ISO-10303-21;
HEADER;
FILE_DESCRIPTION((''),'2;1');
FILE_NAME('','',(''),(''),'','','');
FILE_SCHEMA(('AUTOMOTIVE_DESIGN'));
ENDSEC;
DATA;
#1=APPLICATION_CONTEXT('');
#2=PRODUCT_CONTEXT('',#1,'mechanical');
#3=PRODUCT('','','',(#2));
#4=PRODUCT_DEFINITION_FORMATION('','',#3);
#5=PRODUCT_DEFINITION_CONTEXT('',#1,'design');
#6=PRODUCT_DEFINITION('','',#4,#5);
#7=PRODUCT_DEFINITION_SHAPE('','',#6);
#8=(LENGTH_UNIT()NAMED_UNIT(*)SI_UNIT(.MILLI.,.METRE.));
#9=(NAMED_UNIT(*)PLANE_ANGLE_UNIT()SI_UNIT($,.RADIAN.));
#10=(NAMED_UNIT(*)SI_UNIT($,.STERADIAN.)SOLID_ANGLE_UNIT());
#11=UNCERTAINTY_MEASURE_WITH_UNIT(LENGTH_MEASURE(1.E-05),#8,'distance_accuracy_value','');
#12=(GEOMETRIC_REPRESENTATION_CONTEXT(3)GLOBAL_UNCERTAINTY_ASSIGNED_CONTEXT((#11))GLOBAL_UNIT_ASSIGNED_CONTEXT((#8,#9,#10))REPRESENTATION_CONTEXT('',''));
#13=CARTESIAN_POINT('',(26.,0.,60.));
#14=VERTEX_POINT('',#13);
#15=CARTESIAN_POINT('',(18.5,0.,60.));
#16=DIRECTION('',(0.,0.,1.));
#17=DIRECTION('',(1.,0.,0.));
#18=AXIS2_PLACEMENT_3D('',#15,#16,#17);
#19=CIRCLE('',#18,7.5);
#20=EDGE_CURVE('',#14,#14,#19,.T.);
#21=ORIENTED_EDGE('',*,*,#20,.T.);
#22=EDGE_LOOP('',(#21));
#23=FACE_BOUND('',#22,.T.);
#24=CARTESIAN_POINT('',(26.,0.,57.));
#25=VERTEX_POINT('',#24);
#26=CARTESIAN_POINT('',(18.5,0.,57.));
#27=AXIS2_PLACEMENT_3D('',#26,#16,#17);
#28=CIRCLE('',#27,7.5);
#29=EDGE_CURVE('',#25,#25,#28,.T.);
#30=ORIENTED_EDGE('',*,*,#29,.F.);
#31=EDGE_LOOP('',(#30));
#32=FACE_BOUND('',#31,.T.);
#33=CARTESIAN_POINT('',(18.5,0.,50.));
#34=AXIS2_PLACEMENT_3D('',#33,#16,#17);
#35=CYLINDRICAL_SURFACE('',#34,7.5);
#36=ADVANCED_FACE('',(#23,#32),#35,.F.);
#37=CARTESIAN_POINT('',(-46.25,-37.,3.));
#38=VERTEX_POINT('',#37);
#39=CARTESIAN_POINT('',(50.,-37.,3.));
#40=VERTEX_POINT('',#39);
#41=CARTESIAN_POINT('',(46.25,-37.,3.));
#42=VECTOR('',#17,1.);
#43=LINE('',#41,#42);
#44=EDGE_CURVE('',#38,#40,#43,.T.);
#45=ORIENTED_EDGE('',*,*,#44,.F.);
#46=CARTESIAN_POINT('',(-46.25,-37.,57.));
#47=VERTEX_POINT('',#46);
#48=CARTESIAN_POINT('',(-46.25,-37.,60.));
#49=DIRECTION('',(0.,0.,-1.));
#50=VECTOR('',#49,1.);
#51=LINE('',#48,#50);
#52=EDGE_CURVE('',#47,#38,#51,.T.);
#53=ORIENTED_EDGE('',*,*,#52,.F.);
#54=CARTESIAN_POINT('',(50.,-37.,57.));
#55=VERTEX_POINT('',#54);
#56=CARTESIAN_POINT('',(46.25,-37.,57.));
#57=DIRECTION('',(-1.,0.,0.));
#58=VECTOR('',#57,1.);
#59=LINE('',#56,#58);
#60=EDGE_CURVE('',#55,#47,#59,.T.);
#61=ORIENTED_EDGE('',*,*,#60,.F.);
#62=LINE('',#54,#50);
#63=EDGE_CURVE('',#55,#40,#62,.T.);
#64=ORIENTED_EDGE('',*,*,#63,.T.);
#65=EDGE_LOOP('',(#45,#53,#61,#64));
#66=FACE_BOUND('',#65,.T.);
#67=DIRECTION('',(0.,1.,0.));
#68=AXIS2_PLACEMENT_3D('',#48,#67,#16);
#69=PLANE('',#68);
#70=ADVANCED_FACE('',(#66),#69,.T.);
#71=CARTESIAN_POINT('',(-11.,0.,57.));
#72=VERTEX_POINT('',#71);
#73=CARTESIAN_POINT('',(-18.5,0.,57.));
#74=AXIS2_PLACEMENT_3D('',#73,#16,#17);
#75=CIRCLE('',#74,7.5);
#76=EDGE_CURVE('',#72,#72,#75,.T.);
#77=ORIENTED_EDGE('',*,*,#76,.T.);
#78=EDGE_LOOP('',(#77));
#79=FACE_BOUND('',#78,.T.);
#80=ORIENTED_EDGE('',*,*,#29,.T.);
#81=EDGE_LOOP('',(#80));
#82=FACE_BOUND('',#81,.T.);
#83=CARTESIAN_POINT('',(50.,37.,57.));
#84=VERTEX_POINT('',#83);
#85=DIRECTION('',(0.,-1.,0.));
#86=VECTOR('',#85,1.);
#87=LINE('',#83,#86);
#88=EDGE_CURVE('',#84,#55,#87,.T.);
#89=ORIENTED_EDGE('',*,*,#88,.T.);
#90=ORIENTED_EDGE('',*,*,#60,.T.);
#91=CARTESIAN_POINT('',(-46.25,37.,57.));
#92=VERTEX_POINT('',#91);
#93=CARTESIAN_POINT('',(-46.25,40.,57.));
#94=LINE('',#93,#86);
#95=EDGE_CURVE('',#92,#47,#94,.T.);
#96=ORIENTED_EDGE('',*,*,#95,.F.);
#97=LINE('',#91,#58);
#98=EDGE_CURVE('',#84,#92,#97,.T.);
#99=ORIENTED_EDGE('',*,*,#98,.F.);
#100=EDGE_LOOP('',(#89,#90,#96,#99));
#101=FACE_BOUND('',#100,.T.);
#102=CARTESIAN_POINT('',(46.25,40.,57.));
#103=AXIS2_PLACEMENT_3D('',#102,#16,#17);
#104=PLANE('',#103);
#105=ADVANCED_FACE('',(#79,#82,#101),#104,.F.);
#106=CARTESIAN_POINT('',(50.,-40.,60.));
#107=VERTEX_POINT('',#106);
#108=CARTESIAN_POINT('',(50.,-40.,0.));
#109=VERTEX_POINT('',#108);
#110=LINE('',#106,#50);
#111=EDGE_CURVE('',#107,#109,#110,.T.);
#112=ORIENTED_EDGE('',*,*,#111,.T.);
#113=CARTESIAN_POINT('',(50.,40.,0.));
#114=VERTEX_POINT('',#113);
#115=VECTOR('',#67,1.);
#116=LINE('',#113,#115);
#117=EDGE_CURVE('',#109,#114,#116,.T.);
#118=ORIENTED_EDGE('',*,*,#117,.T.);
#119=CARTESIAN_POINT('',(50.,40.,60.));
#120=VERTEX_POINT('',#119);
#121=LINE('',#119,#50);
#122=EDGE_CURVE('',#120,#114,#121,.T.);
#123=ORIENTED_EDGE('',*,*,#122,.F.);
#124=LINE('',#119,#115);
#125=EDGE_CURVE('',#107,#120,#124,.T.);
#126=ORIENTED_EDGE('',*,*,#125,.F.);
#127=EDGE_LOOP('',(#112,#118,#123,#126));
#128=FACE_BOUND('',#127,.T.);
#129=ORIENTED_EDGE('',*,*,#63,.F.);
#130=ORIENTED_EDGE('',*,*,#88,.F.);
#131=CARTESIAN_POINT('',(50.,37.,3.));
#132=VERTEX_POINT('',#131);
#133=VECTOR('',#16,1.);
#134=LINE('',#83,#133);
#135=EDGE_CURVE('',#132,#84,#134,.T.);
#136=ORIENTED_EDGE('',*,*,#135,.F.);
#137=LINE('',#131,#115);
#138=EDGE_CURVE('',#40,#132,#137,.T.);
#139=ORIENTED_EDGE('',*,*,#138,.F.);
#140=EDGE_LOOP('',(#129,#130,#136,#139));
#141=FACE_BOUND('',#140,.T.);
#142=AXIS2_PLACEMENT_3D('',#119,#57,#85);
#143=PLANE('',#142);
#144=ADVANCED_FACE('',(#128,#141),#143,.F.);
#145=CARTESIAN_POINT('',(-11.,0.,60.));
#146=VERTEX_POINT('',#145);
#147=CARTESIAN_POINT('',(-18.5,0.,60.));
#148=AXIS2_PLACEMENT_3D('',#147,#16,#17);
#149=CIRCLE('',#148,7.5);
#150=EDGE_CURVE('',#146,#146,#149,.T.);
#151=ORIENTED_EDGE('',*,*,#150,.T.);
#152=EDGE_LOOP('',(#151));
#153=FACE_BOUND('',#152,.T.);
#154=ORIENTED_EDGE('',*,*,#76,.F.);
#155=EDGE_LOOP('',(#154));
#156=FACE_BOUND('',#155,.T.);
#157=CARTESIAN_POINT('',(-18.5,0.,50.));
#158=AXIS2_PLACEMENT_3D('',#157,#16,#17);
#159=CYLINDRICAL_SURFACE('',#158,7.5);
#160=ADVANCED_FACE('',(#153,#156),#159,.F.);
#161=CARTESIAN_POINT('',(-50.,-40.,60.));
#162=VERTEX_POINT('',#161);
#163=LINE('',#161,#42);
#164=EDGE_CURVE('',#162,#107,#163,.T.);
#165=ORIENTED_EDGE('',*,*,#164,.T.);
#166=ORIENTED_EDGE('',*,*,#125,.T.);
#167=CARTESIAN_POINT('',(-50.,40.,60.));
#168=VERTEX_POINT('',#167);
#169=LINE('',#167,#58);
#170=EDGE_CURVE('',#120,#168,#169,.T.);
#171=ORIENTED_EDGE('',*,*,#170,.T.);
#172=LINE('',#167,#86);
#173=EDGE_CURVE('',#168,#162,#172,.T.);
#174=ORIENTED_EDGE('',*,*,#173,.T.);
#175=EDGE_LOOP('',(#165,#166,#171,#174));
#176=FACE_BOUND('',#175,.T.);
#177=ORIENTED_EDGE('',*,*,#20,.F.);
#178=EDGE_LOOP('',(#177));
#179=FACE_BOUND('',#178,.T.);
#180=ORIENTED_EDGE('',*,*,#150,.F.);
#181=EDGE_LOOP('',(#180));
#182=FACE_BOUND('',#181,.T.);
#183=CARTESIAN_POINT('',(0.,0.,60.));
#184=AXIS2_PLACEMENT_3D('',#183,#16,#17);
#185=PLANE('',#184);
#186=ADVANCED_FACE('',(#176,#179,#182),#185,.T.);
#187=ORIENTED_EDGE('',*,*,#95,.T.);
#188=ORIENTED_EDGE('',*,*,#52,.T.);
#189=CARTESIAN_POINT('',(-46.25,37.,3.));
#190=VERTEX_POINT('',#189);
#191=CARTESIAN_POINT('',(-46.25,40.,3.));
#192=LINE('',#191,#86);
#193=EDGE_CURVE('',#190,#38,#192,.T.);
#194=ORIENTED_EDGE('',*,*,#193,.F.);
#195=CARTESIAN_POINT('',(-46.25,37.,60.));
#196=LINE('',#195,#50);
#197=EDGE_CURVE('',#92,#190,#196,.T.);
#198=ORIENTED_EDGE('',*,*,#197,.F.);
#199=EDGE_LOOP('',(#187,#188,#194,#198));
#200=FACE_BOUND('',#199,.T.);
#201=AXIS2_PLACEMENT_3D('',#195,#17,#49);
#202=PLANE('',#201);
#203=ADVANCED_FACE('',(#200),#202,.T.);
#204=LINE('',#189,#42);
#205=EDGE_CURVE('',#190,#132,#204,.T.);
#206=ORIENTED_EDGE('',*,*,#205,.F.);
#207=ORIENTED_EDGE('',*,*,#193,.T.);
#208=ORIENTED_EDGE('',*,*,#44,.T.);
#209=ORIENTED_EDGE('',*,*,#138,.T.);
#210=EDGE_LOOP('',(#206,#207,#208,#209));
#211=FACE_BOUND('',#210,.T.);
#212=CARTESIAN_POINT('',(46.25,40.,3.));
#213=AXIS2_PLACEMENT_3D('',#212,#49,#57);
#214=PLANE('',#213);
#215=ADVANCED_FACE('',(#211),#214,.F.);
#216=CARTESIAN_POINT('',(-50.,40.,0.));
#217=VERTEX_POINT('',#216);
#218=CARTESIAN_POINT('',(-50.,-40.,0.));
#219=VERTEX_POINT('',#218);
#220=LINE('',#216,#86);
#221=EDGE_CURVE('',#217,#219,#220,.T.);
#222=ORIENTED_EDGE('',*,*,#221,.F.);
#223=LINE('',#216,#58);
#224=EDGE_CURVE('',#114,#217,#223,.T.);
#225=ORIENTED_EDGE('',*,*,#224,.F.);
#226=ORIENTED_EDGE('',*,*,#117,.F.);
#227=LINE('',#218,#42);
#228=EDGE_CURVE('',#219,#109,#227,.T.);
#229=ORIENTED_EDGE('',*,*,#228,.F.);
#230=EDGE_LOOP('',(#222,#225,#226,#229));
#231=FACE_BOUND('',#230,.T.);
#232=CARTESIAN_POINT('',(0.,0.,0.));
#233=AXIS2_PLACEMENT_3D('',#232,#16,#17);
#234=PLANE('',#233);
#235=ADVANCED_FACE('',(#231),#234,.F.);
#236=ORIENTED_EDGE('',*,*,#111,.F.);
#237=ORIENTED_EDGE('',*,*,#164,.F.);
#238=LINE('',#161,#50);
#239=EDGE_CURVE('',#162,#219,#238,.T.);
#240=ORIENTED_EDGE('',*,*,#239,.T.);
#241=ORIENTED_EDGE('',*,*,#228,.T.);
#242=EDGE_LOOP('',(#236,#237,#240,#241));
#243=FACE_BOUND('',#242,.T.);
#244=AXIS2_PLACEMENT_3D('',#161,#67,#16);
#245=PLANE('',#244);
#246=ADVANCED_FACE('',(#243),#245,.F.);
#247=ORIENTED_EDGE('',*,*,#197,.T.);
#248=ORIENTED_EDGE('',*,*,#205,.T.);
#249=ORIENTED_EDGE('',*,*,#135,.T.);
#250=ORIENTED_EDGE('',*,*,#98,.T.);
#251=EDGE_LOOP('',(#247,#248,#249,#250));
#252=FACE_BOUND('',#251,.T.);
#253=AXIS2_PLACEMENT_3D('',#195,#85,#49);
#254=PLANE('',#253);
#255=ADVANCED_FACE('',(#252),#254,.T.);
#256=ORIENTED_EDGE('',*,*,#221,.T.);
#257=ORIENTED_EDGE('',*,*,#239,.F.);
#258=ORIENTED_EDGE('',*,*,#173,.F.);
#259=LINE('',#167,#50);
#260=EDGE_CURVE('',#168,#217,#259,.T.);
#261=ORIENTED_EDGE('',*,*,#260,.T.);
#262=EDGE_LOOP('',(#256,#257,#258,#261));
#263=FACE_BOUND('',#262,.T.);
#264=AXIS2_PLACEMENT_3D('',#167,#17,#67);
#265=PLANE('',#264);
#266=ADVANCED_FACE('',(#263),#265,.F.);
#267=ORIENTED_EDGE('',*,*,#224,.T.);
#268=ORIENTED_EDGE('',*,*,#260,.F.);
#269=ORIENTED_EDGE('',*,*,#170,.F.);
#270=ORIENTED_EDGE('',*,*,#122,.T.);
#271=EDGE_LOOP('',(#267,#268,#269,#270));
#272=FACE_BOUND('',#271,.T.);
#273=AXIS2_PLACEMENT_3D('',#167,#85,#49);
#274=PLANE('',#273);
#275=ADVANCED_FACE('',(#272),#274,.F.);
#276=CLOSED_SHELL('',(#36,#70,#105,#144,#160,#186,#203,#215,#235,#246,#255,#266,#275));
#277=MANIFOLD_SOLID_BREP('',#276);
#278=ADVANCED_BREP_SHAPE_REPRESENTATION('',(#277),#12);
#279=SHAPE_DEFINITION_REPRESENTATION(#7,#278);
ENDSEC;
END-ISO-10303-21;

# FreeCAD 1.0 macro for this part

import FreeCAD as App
import Part
import Sketcher
from FreeCAD import Vector


def add_polygon(sketch, points):
    """Adds a closed chain of lines whose ends are joined by coincident constraints."""
    first, n = sketch.GeometryCount, len(points)
    for a, b in zip(points, points[1:] + points[:1]):
        sketch.addGeometry(Part.LineSegment(App.Vector(*a, 0), App.Vector(*b, 0)), False)
    for i in range(n):
        sketch.addConstraint(Sketcher.Constraint("Coincident", first + i, 2, first + (i + 1) % n, 1))

doc = App.newDocument("Part")
body = doc.addObject("PartDesign::Body", "Body")

# Sketch on XY plane
sketch1 = body.newObject("Sketcher::SketchObject", "Sketch")
sketch1.AttachmentSupport = (doc.getObject("XY_Plane"), [""])
sketch1.MapMode = "FlatFace"
add_polygon(sketch1, [(-50, 40), (-50, -40), (50, -40), (50, 40)])  # lines 0-3
add_polygon(sketch1, [(46, -37), (-46, -37), (-46, 37), (46, 37)])  # lines 4-7
sketch1.addConstraint([
    Sketcher.Constraint("Vertical", 0),
    Sketcher.Constraint("Horizontal", 1),
    Sketcher.Constraint("Vertical", 2),
    Sketcher.Constraint("Horizontal", 3),
    Sketcher.Constraint("Horizontal", 4),
    Sketcher.Constraint("Vertical", 5),
    Sketcher.Constraint("Horizontal", 6),
    Sketcher.Constraint("Vertical", 7),
    Sketcher.Constraint("Symmetric", 0, 2, 2, 2, -1, 1),
    Sketcher.Constraint("Symmetric", 4, 2, 6, 2, -1, 1),
    Sketcher.Constraint("DistanceX", 1, 1, 1, 2, 100.0),
    Sketcher.Constraint("DistanceY", 0, 2, 0, 1, 80.0),
    Sketcher.Constraint("DistanceY", 5, 1, 5, 2, 74.0),
    Sketcher.Constraint("DistanceX", 4, 2, 4, 1, 92.5),
])
pad1 = body.newObject("PartDesign::Pad", "Pad")
pad1.Profile = sketch1
pad1.Length = 60

# Sketch on XZ plane
sketch2 = body.newObject("Sketcher::SketchObject", "Sketch001")
sketch2.AttachmentSupport = (doc.getObject("XZ_Plane"), [""])
sketch2.MapMode = "FlatFace"
sketch2.AttachmentOffset = App.Placement(Vector(0, 0, 37), App.Rotation())
add_polygon(sketch2, [(-46.2, 0), (-46.2, 3), (46.2, 3), (46.2, 0)])  # lines 0-3
sketch2.addConstraint([
    Sketcher.Constraint("Vertical", 0),
    Sketcher.Constraint("Horizontal", 1),
    Sketcher.Constraint("Vertical", 2),
    Sketcher.Constraint("Horizontal", 3),
    Sketcher.Constraint("Symmetric", 2, 2, 3, 2, -1, 1),
    Sketcher.Constraint("DistanceY", 0, 1, 0, 2, 3.0),
    Sketcher.Constraint("DistanceX", 1, 1, 1, 2, 92.5),
])
pad2 = body.newObject("PartDesign::Pad", "Pad001")
pad2.Profile = sketch2
pad2.Length = 77
pad2.Reversed = True

# Sketch on XZ plane
sketch3 = body.newObject("Sketcher::SketchObject", "Sketch002")
sketch3.AttachmentSupport = (doc.getObject("XZ_Plane"), [""])
sketch3.MapMode = "FlatFace"
sketch3.AttachmentOffset = App.Placement(Vector(0, 0, 37), App.Rotation())
add_polygon(sketch3, [(-46.2, 57), (-46.2, 60), (46.2, 60), (46.2, 57)])  # lines 0-3
sketch3.addConstraint([
    Sketcher.Constraint("Vertical", 0),
    Sketcher.Constraint("Horizontal", 1),
    Sketcher.Constraint("Vertical", 2),
    Sketcher.Constraint("Horizontal", 3),
    Sketcher.Constraint("DistanceY", 0, 1, 0, 2, 3.0),
    Sketcher.Constraint("DistanceX", 1, 1, 1, 2, 92.5),
    Sketcher.Constraint("DistanceY", -1, 1, 0, 2, 60.0),
    Sketcher.Constraint("DistanceX", 0, 2, -1, 1, 46.25),
])
pad3 = body.newObject("PartDesign::Pad", "Pad002")
pad3.Profile = sketch3
pad3.Length = 77
pad3.Reversed = True

# Sketch on YZ plane
sketch4 = body.newObject("Sketcher::SketchObject", "Sketch003")
sketch4.AttachmentSupport = (doc.getObject("YZ_Plane"), [""])
sketch4.MapMode = "FlatFace"
sketch4.AttachmentOffset = App.Placement(Vector(0, 0, 50), App.Rotation())
add_polygon(sketch4, [(37, 57), (-37, 57), (-37, 3), (37, 3)])  # lines 0-3
sketch4.addConstraint([
    Sketcher.Constraint("Horizontal", 0),
    Sketcher.Constraint("Vertical", 1),
    Sketcher.Constraint("Horizontal", 2),
    Sketcher.Constraint("Vertical", 3),
    Sketcher.Constraint("DistanceX", 0, 2, 0, 1, 74.0),
    Sketcher.Constraint("DistanceY", 1, 2, 1, 1, 54.0),
    Sketcher.Constraint("DistanceX", 0, 2, -1, 1, 37.0),
    Sketcher.Constraint("DistanceY", -1, 1, 0, 2, 57.0),
])
pocket1 = body.newObject("PartDesign::Pocket", "Pocket")
pocket1.Profile = sketch4
pocket1.Length = 77

# Sketch on XY plane
sketch5 = body.newObject("Sketcher::SketchObject", "Sketch004")
sketch5.AttachmentSupport = (doc.getObject("XY_Plane"), [""])
sketch5.MapMode = "FlatFace"
sketch5.AttachmentOffset = App.Placement(Vector(0, 0, 60), App.Rotation())
sketch5.addGeometry([
    Part.Circle(Vector(18, 0, 0), Vector(0, 0, 1), 8),
    Part.Circle(Vector(-18, 0, 0), Vector(0, 0, 1), 8),
], False)
sketch5.addConstraint([
    Sketcher.Constraint("Equal", 0, 1),
    Sketcher.Constraint("Symmetric", 0, 3, 1, 3, -1, 1),
    Sketcher.Constraint("PointOnObject", 0, 3, -1),
    Sketcher.Constraint("Diameter", 0, 15.0),
    Sketcher.Constraint("DistanceX", 1, 3, 0, 3, 37.0),
])
pocket2 = body.newObject("PartDesign::Pocket", "Pocket001")
pocket2.Profile = sketch5
pocket2.Length = 10

doc.recompute()
